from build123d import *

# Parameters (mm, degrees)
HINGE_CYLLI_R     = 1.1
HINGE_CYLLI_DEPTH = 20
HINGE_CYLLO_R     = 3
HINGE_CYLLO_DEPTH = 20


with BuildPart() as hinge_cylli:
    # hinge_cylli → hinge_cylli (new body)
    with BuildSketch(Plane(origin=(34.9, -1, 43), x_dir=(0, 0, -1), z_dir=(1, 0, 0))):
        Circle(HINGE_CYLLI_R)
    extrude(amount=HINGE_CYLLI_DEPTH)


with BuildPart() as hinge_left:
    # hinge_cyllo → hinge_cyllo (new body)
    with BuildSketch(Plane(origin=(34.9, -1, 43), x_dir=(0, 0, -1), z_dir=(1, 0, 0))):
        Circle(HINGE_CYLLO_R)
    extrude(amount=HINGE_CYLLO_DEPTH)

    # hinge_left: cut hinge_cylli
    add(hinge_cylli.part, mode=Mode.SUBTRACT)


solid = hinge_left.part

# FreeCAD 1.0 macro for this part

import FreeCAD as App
import Part
import Sketcher

doc = App.newDocument("Part")
body = doc.addObject("PartDesign::Body", "Body")

# Sketch on YZ plane
sketch1 = body.newObject("Sketcher::SketchObject", "Sketch")
sketch1.AttachmentSupport = (doc.getObject("YZ_Plane"), [""])
sketch1.MapMode = "FlatFace"
sketch1.AttachmentOffset = App.Placement(App.Vector(0, 0, 34.9), App.Rotation())
sketch1.addGeometry(Part.Circle(App.Vector(-1, 43, 0), App.Vector(0, 0, 1), 1.1), False)
sketch1.addConstraint([
    Sketcher.Constraint("Diameter", 0, 2.2),
    Sketcher.Constraint("DistanceX", 0, 3, -1, 1, 1.0),
    Sketcher.Constraint("DistanceY", -1, 1, 0, 3, 43.0),
])
pad1 = body.newObject("PartDesign::Pad", "Pad")
pad1.Profile = sketch1
pad1.Length = 20
body2 = doc.addObject("PartDesign::Body", "Body001")

# Sketch on YZ plane
sketch2 = body2.newObject("Sketcher::SketchObject", "Sketch001")
sketch2.AttachmentSupport = (doc.getObject("YZ_Plane001"), [""])
sketch2.MapMode = "FlatFace"
sketch2.AttachmentOffset = App.Placement(App.Vector(0, 0, 34.9), App.Rotation())
sketch2.addGeometry(Part.Circle(App.Vector(-1, 43, 0), App.Vector(0, 0, 1), 3), False)
sketch2.addConstraint([
    Sketcher.Constraint("Diameter", 0, 6.0),
    Sketcher.Constraint("DistanceX", 0, 3, -1, 1, 1.0),
    Sketcher.Constraint("DistanceY", -1, 1, 0, 3, 43.0),
])
pad2 = body2.newObject("PartDesign::Pad", "Pad001")
pad2.Profile = sketch2
pad2.Length = 20
doc.recompute()

boolean = body2.newObject("PartDesign::Boolean", "Boolean")
boolean.Type = "Cut"
boolean.addObjects([body])

doc.recompute()
